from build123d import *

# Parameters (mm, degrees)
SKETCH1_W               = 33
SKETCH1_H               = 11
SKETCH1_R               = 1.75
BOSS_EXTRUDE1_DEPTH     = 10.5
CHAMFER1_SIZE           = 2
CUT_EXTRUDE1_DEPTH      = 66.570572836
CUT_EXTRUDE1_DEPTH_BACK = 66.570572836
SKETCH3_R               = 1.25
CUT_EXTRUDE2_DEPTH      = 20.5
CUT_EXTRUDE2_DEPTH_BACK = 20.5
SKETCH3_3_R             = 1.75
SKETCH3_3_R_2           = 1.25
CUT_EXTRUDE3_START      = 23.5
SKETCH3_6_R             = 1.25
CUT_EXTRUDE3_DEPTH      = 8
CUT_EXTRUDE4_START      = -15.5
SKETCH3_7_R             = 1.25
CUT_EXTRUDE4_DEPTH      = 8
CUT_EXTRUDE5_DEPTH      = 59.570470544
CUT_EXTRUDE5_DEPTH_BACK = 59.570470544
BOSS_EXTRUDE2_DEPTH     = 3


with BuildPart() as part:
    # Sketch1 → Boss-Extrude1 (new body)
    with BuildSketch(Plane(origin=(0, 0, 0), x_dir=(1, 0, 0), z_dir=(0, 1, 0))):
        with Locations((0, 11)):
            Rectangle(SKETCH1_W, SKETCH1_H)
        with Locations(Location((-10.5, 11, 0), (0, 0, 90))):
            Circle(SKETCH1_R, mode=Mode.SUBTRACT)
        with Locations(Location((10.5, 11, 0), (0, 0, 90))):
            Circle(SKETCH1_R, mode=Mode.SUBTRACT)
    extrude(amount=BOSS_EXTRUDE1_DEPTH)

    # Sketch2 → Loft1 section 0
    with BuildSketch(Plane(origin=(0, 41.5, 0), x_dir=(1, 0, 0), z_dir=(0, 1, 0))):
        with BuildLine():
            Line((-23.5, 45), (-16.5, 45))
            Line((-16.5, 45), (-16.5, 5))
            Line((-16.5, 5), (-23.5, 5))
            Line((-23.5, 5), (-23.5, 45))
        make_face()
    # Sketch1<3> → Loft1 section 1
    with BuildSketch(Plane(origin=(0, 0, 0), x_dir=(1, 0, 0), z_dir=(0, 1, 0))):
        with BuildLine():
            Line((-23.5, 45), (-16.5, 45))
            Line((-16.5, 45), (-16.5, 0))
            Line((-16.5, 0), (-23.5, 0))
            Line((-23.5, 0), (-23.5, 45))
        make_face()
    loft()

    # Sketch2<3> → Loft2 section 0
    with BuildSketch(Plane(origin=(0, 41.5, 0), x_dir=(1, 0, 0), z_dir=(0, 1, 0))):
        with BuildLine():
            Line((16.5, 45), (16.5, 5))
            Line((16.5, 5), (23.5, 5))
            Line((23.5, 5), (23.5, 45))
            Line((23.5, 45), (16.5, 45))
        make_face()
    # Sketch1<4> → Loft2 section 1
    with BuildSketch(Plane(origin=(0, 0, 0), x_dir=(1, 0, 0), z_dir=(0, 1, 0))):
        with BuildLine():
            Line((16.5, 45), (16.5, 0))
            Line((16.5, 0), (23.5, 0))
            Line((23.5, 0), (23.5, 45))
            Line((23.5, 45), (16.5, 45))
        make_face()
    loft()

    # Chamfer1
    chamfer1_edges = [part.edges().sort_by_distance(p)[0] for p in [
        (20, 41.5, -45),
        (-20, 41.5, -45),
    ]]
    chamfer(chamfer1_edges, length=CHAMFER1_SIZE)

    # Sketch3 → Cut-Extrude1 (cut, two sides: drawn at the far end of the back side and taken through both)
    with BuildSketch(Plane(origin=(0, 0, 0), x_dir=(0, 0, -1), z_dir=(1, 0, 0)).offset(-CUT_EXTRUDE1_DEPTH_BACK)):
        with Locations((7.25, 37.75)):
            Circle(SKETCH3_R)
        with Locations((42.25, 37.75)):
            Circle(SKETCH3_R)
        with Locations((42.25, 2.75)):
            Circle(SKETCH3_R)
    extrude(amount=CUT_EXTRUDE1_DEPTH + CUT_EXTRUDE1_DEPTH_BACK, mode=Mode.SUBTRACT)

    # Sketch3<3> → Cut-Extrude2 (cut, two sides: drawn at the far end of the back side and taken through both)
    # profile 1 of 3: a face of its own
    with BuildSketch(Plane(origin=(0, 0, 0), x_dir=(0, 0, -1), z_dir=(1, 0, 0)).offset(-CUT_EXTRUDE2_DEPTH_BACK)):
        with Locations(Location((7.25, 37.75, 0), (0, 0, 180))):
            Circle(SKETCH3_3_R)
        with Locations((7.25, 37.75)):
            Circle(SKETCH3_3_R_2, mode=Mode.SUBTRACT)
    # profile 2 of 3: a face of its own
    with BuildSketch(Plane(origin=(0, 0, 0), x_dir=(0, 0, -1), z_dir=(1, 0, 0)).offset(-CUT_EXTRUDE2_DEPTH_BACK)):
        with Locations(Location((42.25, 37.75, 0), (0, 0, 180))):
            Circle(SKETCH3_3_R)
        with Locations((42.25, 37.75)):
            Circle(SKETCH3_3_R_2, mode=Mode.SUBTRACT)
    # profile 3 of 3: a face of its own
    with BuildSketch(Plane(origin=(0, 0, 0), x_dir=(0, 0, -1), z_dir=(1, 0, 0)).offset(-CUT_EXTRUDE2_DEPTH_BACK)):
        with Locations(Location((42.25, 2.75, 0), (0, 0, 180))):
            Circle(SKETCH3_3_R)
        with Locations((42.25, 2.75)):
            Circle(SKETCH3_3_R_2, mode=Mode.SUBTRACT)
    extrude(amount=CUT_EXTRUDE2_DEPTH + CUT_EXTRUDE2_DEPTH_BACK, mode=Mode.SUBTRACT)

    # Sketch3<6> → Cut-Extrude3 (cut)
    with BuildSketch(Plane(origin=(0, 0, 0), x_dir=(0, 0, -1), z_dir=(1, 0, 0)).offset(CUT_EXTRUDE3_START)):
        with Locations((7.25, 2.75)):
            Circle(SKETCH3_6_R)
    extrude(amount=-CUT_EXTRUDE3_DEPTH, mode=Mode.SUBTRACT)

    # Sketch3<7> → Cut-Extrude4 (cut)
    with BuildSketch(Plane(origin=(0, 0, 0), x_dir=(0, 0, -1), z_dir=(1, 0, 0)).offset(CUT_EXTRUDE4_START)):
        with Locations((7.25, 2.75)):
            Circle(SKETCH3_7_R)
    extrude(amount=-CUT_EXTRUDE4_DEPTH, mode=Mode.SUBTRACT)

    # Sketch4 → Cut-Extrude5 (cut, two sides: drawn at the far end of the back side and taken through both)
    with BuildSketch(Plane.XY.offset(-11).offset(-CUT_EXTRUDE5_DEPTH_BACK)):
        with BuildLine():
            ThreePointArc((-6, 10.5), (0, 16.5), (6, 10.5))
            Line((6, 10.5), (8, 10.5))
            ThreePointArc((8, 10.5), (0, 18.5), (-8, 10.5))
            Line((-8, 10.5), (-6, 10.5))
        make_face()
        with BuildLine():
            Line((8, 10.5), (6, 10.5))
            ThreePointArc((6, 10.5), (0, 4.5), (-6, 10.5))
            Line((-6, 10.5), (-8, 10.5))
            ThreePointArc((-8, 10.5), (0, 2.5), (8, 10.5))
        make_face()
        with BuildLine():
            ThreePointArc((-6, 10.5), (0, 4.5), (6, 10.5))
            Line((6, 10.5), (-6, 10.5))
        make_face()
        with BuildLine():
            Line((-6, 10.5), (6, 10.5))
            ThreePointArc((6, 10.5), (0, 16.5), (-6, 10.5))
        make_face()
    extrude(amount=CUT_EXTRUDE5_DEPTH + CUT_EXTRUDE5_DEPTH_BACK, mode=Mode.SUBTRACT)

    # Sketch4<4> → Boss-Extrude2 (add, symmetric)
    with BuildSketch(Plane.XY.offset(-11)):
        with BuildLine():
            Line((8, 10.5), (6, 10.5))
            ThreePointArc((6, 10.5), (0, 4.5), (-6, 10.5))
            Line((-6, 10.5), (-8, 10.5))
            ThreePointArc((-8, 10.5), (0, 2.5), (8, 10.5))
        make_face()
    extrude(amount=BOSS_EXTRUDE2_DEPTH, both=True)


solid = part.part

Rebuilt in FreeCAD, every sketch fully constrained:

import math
import FreeCAD as App
import Part
import Sketcher

V = App.Vector


def edges_at(feature, points):
    """Names of the edges that pass closest to the given points."""
    edges = feature.Shape.Edges
    near = lambda p: min(range(len(edges)), key=lambda i: edges[i].distToShape(Part.Vertex(*p))[0])
    return sorted({f"Edge{near(p) + 1}" for p in points})

doc = App.newDocument("Part")
body = doc.addObject("PartDesign::Body", "Body")

# Sketch on XZ plane
sketch1 = doc.addObject("Sketcher::SketchObject", "Sketch")
body.addObject(sketch1)
sketch1.AttachmentSupport = (doc.XZ_Plane, [""])
sketch1.MapMode = "FlatFace"
sketch1.addGeometry(Part.LineSegment(V(-16.5, -16.5, 0), V(-16.5, -5.5, 0)), False)
sketch1.addGeometry(Part.LineSegment(V(-16.5, -5.5, 0), V(16.5, -5.5, 0)), False)
sketch1.addGeometry(Part.LineSegment(V(16.5, -5.5, 0), V(16.5, -16.5, 0)), False)
sketch1.addGeometry(Part.LineSegment(V(16.5, -16.5, 0), V(-16.5, -16.5, 0)), False)
sketch1.addGeometry(Part.Circle(V(-10.5, -11, 0), V(0, 0, 1), 1.75), False)
sketch1.addGeometry(Part.Circle(V(10.5, -11, 0), V(0, 0, 1), 1.75), False)
sketch1.addConstraint(Sketcher.Constraint("Coincident", 0, 2, 1, 1))
sketch1.addConstraint(Sketcher.Constraint("Coincident", 1, 2, 2, 1))
sketch1.addConstraint(Sketcher.Constraint("Coincident", 2, 2, 3, 1))
sketch1.addConstraint(Sketcher.Constraint("Coincident", 3, 2, 0, 1))
sketch1.addConstraint(Sketcher.Constraint("Vertical", 0))
sketch1.addConstraint(Sketcher.Constraint("Horizontal", 1))
sketch1.addConstraint(Sketcher.Constraint("Vertical", 2))
sketch1.addConstraint(Sketcher.Constraint("Horizontal", 3))
sketch1.addConstraint(Sketcher.Constraint("Equal", 4, 5))
sketch1.addConstraint(Sketcher.Constraint("Symmetric", 4, 3, 5, 3, -2))
sketch1.addConstraint(Sketcher.Constraint("Diameter", 4, 3.5))
sketch1.addConstraint(Sketcher.Constraint("DistanceX", 1, 1, 1, 2, 33.0))
sketch1.addConstraint(Sketcher.Constraint("DistanceY", 0, 1, 0, 2, 11.0))
sketch1.addConstraint(Sketcher.Constraint("DistanceY", 4, 3, -1, 1, 11.0))
sketch1.addConstraint(Sketcher.Constraint("DistanceX", 4, 3, 5, 3, 21.0))
sketch1.addConstraint(Sketcher.Constraint("DistanceX", 0, 2, 4, 3, 6.0))
sketch1.addConstraint(Sketcher.Constraint("DistanceY", 0, 2, -1, 1, 5.5))
pad1 = doc.addObject("PartDesign::Pad", "Pad")
body.addObject(pad1)
pad1.Profile = sketch1
pad1.Length = 10.5
pad1.Reversed = True

# Sketch on XZ plane
sketch2 = doc.addObject("Sketcher::SketchObject", "Sketch001")
body.addObject(sketch2)
sketch2.AttachmentSupport = (doc.XZ_Plane, [""])
sketch2.MapMode = "FlatFace"
sketch2.AttachmentOffset = App.Placement(V(0, 0, -41.5), App.Rotation())
sketch2.addGeometry(Part.LineSegment(V(-16.5, -45, 0), V(-23.5, -45, 0)), False)
sketch2.addGeometry(Part.LineSegment(V(-23.5, -45, 0), V(-23.5, -5, 0)), False)
sketch2.addGeometry(Part.LineSegment(V(-23.5, -5, 0), V(-16.5, -5, 0)), False)
sketch2.addGeometry(Part.LineSegment(V(-16.5, -5, 0), V(-16.5, -45, 0)), False)
sketch2.addConstraint(Sketcher.Constraint("Coincident", 0, 2, 1, 1))
sketch2.addConstraint(Sketcher.Constraint("Coincident", 1, 2, 2, 1))
sketch2.addConstraint(Sketcher.Constraint("Coincident", 2, 2, 3, 1))
sketch2.addConstraint(Sketcher.Constraint("Coincident", 3, 2, 0, 1))
sketch2.addConstraint(Sketcher.Constraint("Horizontal", 0))
sketch2.addConstraint(Sketcher.Constraint("Vertical", 1))
sketch2.addConstraint(Sketcher.Constraint("Horizontal", 2))
sketch2.addConstraint(Sketcher.Constraint("Vertical", 3))
sketch2.addConstraint(Sketcher.Constraint("DistanceX", 0, 2, 0, 1, 7.0))
sketch2.addConstraint(Sketcher.Constraint("DistanceY", 1, 1, 1, 2, 40.0))
sketch2.addConstraint(Sketcher.Constraint("DistanceY", 0, 2, -1, 1, 45.0))
sketch2.addConstraint(Sketcher.Constraint("DistanceX", 0, 2, -1, 1, 23.5))

# Sketch on XZ plane
sketch3 = doc.addObject("Sketcher::SketchObject", "Sketch002")
body.addObject(sketch3)
sketch3.AttachmentSupport = (doc.XZ_Plane, [""])
sketch3.MapMode = "FlatFace"
sketch3.addGeometry(Part.LineSegment(V(-16.5, -45, 0), V(-23.5, -45, 0)), False)
sketch3.addGeometry(Part.LineSegment(V(-23.5, -45, 0), V(-23.5, 0, 0)), False)
sketch3.addGeometry(Part.LineSegment(V(-23.5, 0, 0), V(-16.5, 0, 0)), False)
sketch3.addGeometry(Part.LineSegment(V(-16.5, 0, 0), V(-16.5, -45, 0)), False)
sketch3.addConstraint(Sketcher.Constraint("Coincident", 0, 2, 1, 1))
sketch3.addConstraint(Sketcher.Constraint("Coincident", 1, 2, 2, 1))
sketch3.addConstraint(Sketcher.Constraint("Coincident", 2, 2, 3, 1))
sketch3.addConstraint(Sketcher.Constraint("Coincident", 3, 2, 0, 1))
sketch3.addConstraint(Sketcher.Constraint("Horizontal", 0))
sketch3.addConstraint(Sketcher.Constraint("Vertical", 1))
sketch3.addConstraint(Sketcher.Constraint("Horizontal", 2))
sketch3.addConstraint(Sketcher.Constraint("Vertical", 3))
sketch3.addConstraint(Sketcher.Constraint("PointOnObject", 1, 2, -1))
sketch3.addConstraint(Sketcher.Constraint("DistanceX", 0, 2, 0, 1, 7.0))
sketch3.addConstraint(Sketcher.Constraint("DistanceY", 1, 1, 1, 2, 45.0))
sketch3.addConstraint(Sketcher.Constraint("DistanceX", 0, 2, -1, 1, 23.5))

additiveloft = doc.addObject("PartDesign::AdditiveLoft", "AdditiveLoft")
body.addObject(additiveloft)
additiveloft.Profile = sketch2
additiveloft.Sections = [sketch3]

# Sketch on XZ plane
sketch4 = doc.addObject("Sketcher::SketchObject", "Sketch003")
body.addObject(sketch4)
sketch4.AttachmentSupport = (doc.XZ_Plane, [""])
sketch4.MapMode = "FlatFace"
sketch4.AttachmentOffset = App.Placement(V(0, 0, -41.5), App.Rotation())
sketch4.addGeometry(Part.LineSegment(V(16.5, -45, 0), V(16.5, -5, 0)), False)
sketch4.addGeometry(Part.LineSegment(V(16.5, -5, 0), V(23.5, -5, 0)), False)
sketch4.addGeometry(Part.LineSegment(V(23.5, -5, 0), V(23.5, -45, 0)), False)
sketch4.addGeometry(Part.LineSegment(V(23.5, -45, 0), V(16.5, -45, 0)), False)
sketch4.addConstraint(Sketcher.Constraint("Coincident", 0, 2, 1, 1))
sketch4.addConstraint(Sketcher.Constraint("Coincident", 1, 2, 2, 1))
sketch4.addConstraint(Sketcher.Constraint("Coincident", 2, 2, 3, 1))
sketch4.addConstraint(Sketcher.Constraint("Coincident", 3, 2, 0, 1))
sketch4.addConstraint(Sketcher.Constraint("Vertical", 0))
sketch4.addConstraint(Sketcher.Constraint("Horizontal", 1))
sketch4.addConstraint(Sketcher.Constraint("Vertical", 2))
sketch4.addConstraint(Sketcher.Constraint("Horizontal", 3))
sketch4.addConstraint(Sketcher.Constraint("DistanceX", 1, 1, 1, 2, 7.0))
sketch4.addConstraint(Sketcher.Constraint("DistanceY", 0, 1, 0, 2, 40.0))
sketch4.addConstraint(Sketcher.Constraint("DistanceY", 0, 2, -1, 1, 5.0))
sketch4.addConstraint(Sketcher.Constraint("DistanceX", -1, 1, 0, 2, 16.5))

# Sketch on XZ plane
sketch5 = doc.addObject("Sketcher::SketchObject", "Sketch004")
body.addObject(sketch5)
sketch5.AttachmentSupport = (doc.XZ_Plane, [""])
sketch5.MapMode = "FlatFace"
sketch5.addGeometry(Part.LineSegment(V(16.5, -45, 0), V(16.5, 0, 0)), False)
sketch5.addGeometry(Part.LineSegment(V(16.5, 0, 0), V(23.5, 0, 0)), False)
sketch5.addGeometry(Part.LineSegment(V(23.5, 0, 0), V(23.5, -45, 0)), False)
sketch5.addGeometry(Part.LineSegment(V(23.5, -45, 0), V(16.5, -45, 0)), False)
sketch5.addConstraint(Sketcher.Constraint("Coincident", 0, 2, 1, 1))
sketch5.addConstraint(Sketcher.Constraint("Coincident", 1, 2, 2, 1))
sketch5.addConstraint(Sketcher.Constraint("Coincident", 2, 2, 3, 1))
sketch5.addConstraint(Sketcher.Constraint("Coincident", 3, 2, 0, 1))
sketch5.addConstraint(Sketcher.Constraint("Vertical", 0))
sketch5.addConstraint(Sketcher.Constraint("Horizontal", 1))
sketch5.addConstraint(Sketcher.Constraint("Vertical", 2))
sketch5.addConstraint(Sketcher.Constraint("Horizontal", 3))
sketch5.addConstraint(Sketcher.Constraint("PointOnObject", 0, 2, -1))
sketch5.addConstraint(Sketcher.Constraint("DistanceX", 1, 1, 1, 2, 7.0))
sketch5.addConstraint(Sketcher.Constraint("DistanceY", 0, 1, 0, 2, 45.0))
sketch5.addConstraint(Sketcher.Constraint("DistanceX", -1, 1, 0, 2, 16.5))

additiveloft2 = doc.addObject("PartDesign::AdditiveLoft", "AdditiveLoft001")
body.addObject(additiveloft2)
additiveloft2.Profile = sketch4
additiveloft2.Sections = [sketch5]
doc.recompute()

chamfer = doc.addObject("PartDesign::Chamfer", "Chamfer")
body.addObject(chamfer)
chamfer.Base = (additiveloft2, edges_at(additiveloft2, [(20, 41.5, -45), (-20, 41.5, -45)]))
chamfer.Size = 2

# Sketch on YZ plane
sketch6 = doc.addObject("Sketcher::SketchObject", "Sketch005")
body.addObject(sketch6)
sketch6.AttachmentSupport = (doc.YZ_Plane, [""])
sketch6.MapMode = "FlatFace"
sketch6.addGeometry(Part.Circle(V(37.75, -7.25, 0), V(0, 0, 1), 1.25), False)
sketch6.addGeometry(Part.Circle(V(37.75, -42.25, 0), V(0, 0, 1), 1.25), False)
sketch6.addGeometry(Part.Circle(V(2.75, -42.25, 0), V(0, 0, 1), 1.25), False)
sketch6.addConstraint(Sketcher.Constraint("Equal", 0, 1))
sketch6.addConstraint(Sketcher.Constraint("Equal", 1, 2))
sketch6.addConstraint(Sketcher.Constraint("Horizontal", 1, 3, 2, 3))
sketch6.addConstraint(Sketcher.Constraint("Vertical", 0, 3, 1, 3))
sketch6.addConstraint(Sketcher.Constraint("Diameter", 0, 2.5))
sketch6.addConstraint(Sketcher.Constraint("DistanceY", 1, 3, 0, 3, 35.0))
sketch6.addConstraint(Sketcher.Constraint("DistanceX", 2, 3, 1, 3, 35.0))
sketch6.addConstraint(Sketcher.Constraint("DistanceX", -1, 1, 0, 3, 37.75))
sketch6.addConstraint(Sketcher.Constraint("DistanceY", 0, 3, -1, 1, 7.25))
pocket1 = doc.addObject("PartDesign::Pocket", "Pocket")
body.addObject(pocket1)
pocket1.Profile = sketch6
pocket1.Type = "ThroughAll"
pocket1.Midplane = True

# Sketch on YZ plane
sketch7 = doc.addObject("Sketcher::SketchObject", "Sketch006")
body.addObject(sketch7)
sketch7.AttachmentSupport = (doc.YZ_Plane, [""])
sketch7.MapMode = "FlatFace"
sketch7.addGeometry(Part.Circle(V(37.75, -7.25, 0), V(0, 0, 1), 1.75), False)
sketch7.addGeometry(Part.Circle(V(37.75, -7.25, 0), V(0, 0, 1), 1.25), False)
sketch7.addGeometry(Part.Circle(V(37.75, -42.25, 0), V(0, 0, 1), 1.75), False)
sketch7.addGeometry(Part.Circle(V(37.75, -42.25, 0), V(0, 0, 1), 1.25), False)
sketch7.addGeometry(Part.Circle(V(2.75, -42.25, 0), V(0, 0, 1), 1.75), False)
sketch7.addGeometry(Part.Circle(V(2.75, -42.25, 0), V(0, 0, 1), 1.25), False)
sketch7.addConstraint(Sketcher.Constraint("Coincident", 1, 3, 0, 3))
sketch7.addConstraint(Sketcher.Constraint("Coincident", 3, 3, 2, 3))
sketch7.addConstraint(Sketcher.Constraint("Coincident", 5, 3, 4, 3))
sketch7.addConstraint(Sketcher.Constraint("Equal", 0, 2))
sketch7.addConstraint(Sketcher.Constraint("Equal", 1, 3))
sketch7.addConstraint(Sketcher.Constraint("Equal", 2, 4))
sketch7.addConstraint(Sketcher.Constraint("Equal", 3, 5))
sketch7.addConstraint(Sketcher.Constraint("Horizontal", 3, 3, 4, 3))
sketch7.addConstraint(Sketcher.Constraint("Vertical", 1, 3, 2, 3))
sketch7.addConstraint(Sketcher.Constraint("Diameter", 0, 3.5))
sketch7.addConstraint(Sketcher.Constraint("Diameter", 1, 2.5))
sketch7.addConstraint(Sketcher.Constraint("DistanceY", 2, 3, 0, 3, 35.0))
sketch7.addConstraint(Sketcher.Constraint("DistanceX", 4, 3, 2, 3, 35.0))
sketch7.addConstraint(Sketcher.Constraint("DistanceX", -1, 1, 0, 3, 37.75))
sketch7.addConstraint(Sketcher.Constraint("DistanceY", 0, 3, -1, 1, 7.25))
pocket2 = doc.addObject("PartDesign::Pocket", "Pocket001")
body.addObject(pocket2)
pocket2.Profile = sketch7
pocket2.Type = "TwoLengths"
pocket2.Length = 20.5
pocket2.Length2 = 20.5
pocket2.Reversed = True

# Sketch on YZ plane
sketch8 = doc.addObject("Sketcher::SketchObject", "Sketch007")
body.addObject(sketch8)
sketch8.AttachmentSupport = (doc.YZ_Plane, [""])
sketch8.MapMode = "FlatFace"
sketch8.AttachmentOffset = App.Placement(V(0, 0, 23.5), App.Rotation())
sketch8.addGeometry(Part.Circle(V(2.75, -7.25, 0), V(0, 0, 1), 1.25), False)
sketch8.addConstraint(Sketcher.Constraint("Diameter", 0, 2.5))
sketch8.addConstraint(Sketcher.Constraint("DistanceX", -1, 1, 0, 3, 2.75))
sketch8.addConstraint(Sketcher.Constraint("DistanceY", 0, 3, -1, 1, 7.25))
pocket3 = doc.addObject("PartDesign::Pocket", "Pocket002")
body.addObject(pocket3)
pocket3.Profile = sketch8
pocket3.Length = 8

# Sketch on YZ plane
sketch9 = doc.addObject("Sketcher::SketchObject", "Sketch008")
body.addObject(sketch9)
sketch9.AttachmentSupport = (doc.YZ_Plane, [""])
sketch9.MapMode = "FlatFace"
sketch9.AttachmentOffset = App.Placement(V(0, 0, -15.5), App.Rotation())
sketch9.addGeometry(Part.Circle(V(2.75, -7.25, 0), V(0, 0, 1), 1.25), False)
sketch9.addConstraint(Sketcher.Constraint("Diameter", 0, 2.5))
sketch9.addConstraint(Sketcher.Constraint("DistanceX", -1, 1, 0, 3, 2.75))
sketch9.addConstraint(Sketcher.Constraint("DistanceY", 0, 3, -1, 1, 7.25))
pocket4 = doc.addObject("PartDesign::Pocket", "Pocket003")
body.addObject(pocket4)
pocket4.Profile = sketch9
pocket4.Length = 8

# Sketch on XY plane
sketch10 = doc.addObject("Sketcher::SketchObject", "Sketch009")
body.addObject(sketch10)
sketch10.AttachmentSupport = (doc.XY_Plane, [""])
sketch10.MapMode = "FlatFace"
sketch10.AttachmentOffset = App.Placement(V(0, 0, -11), App.Rotation())
sketch10.addGeometry(Part.Circle(V(0, 10.5, 0), V(0, 0, 1), 8), False)
sketch10.addConstraint(Sketcher.Constraint("PointOnObject", 0, 3, -2))
sketch10.addConstraint(Sketcher.Constraint("Diameter", 0, 16.0))
sketch10.addConstraint(Sketcher.Constraint("DistanceY", -1, 1, 0, 3, 10.5))
pocket5 = doc.addObject("PartDesign::Pocket", "Pocket004")
body.addObject(pocket5)
pocket5.Profile = sketch10
pocket5.Type = "ThroughAll"
pocket5.Midplane = True

# Sketch on XY plane
sketch11 = doc.addObject("Sketcher::SketchObject", "Sketch010")
body.addObject(sketch11)
sketch11.AttachmentSupport = (doc.XY_Plane, [""])
sketch11.MapMode = "FlatFace"
sketch11.AttachmentOffset = App.Placement(V(0, 0, -11), App.Rotation())
sketch11.addGeometry(Part.LineSegment(V(8, 10.5, 0), V(6, 10.5, 0)), False)
sketch11.addGeometry(Part.ArcOfCircle(Part.Circle(V(0, 10.5, 0), V(0, 0, 1), 6), math.radians(180), math.radians(360)), False)
sketch11.addGeometry(Part.LineSegment(V(-6, 10.5, 0), V(-8, 10.5, 0)), False)
sketch11.addGeometry(Part.ArcOfCircle(Part.Circle(V(0, 10.5, 0), V(0, 0, 1), 8), math.radians(180), math.radians(360)), False)
sketch11.addConstraint(Sketcher.Constraint("Coincident", 0, 2, 1, 2))
sketch11.addConstraint(Sketcher.Constraint("Coincident", 1, 1, 2, 1))
sketch11.addConstraint(Sketcher.Constraint("Coincident", 2, 2, 3, 1))
sketch11.addConstraint(Sketcher.Constraint("Coincident", 3, 2, 0, 1))
sketch11.addConstraint(Sketcher.Constraint("Horizontal", 0))
sketch11.addConstraint(Sketcher.Constraint("Horizontal", 2))
sketch11.addConstraint(Sketcher.Constraint("Coincident", 3, 3, 1, 3))
sketch11.addConstraint(Sketcher.Constraint("Symmetric", 0, 2, 1, 1, -2))
sketch11.addConstraint(Sketcher.Constraint("Horizontal", 3, 3, 0, 2))
sketch11.addConstraint(Sketcher.Constraint("Radius", 1, 6.0))
sketch11.addConstraint(Sketcher.Constraint("Radius", 3, 8.0))
sketch11.addConstraint(Sketcher.Constraint("DistanceY", -1, 1, 1, 3, 10.5))
pad2 = doc.addObject("PartDesign::Pad", "Pad001")
body.addObject(pad2)
pad2.Profile = sketch11
pad2.Length = 6
pad2.Midplane = True

doc.recompute()
